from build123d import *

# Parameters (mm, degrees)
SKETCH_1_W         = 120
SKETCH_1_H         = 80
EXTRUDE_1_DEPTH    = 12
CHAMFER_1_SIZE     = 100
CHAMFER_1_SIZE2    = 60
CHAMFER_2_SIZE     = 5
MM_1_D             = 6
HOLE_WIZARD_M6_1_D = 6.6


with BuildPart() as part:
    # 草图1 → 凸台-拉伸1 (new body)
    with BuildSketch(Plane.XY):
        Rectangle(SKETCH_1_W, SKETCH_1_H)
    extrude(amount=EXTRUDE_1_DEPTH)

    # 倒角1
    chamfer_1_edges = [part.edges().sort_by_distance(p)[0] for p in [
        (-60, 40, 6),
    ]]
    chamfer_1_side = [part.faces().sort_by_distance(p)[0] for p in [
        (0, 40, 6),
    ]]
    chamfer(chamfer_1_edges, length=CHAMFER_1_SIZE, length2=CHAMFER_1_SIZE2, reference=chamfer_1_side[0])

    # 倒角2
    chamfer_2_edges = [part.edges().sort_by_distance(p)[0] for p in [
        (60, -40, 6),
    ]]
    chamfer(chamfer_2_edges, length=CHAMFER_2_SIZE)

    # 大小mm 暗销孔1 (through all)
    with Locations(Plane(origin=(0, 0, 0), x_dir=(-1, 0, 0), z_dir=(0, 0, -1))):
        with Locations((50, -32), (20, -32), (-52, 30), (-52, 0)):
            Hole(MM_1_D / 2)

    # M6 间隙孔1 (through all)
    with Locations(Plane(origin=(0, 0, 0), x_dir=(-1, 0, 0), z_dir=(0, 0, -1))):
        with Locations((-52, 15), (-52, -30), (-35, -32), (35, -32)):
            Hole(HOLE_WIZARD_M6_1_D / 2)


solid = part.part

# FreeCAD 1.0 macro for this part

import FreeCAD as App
import Part
import Sketcher


def edges_at(feature, points):
    """Names of the edges that pass closest to the given points."""
    edges = feature.Shape.Edges
    near = lambda p: min(range(len(edges)), key=lambda i: edges[i].distToShape(Part.Vertex(*p))[0])
    return sorted({f"Edge{near(p) + 1}" for p in points})

doc = App.newDocument("Part")
params = doc.addObject("Spreadsheet::Sheet", "Params")
for row, (alias, value) in enumerate([
    ("sketch1_width", "120 mm"),
    ("sketch1_height", "80 mm"),
    ("pad1_length", "12 mm"),
    ("chamfer_size", "100 mm"),
    ("chamfer_size2", "60 mm"),
    ("chamfer2_size", "5 mm"),
    ("sketch2_diameter", "6 mm"),
    ("hole_diameter", "6 mm"),
    ("sketch3_diameter", "6.6 mm"),
    ("hole2_diameter", "6.6 mm"),
], start=1):
    params.set(f"A{row}", alias)
    params.set(f"B{row}", "=" + value)
    params.setAlias(f"B{row}", alias)

body = doc.addObject("PartDesign::Body", "Body")

# Sketch on XY plane
sketch1 = body.newObject("Sketcher::SketchObject", "Sketch")
sketch1.AttachmentSupport = (doc.getObject("XY_Plane"), [""])
sketch1.MapMode = "FlatFace"
sketch1.addGeometry(Part.LineSegment(App.Vector(-60, 40, 0), App.Vector(-60, -40, 0)), False)
sketch1.addGeometry(Part.LineSegment(App.Vector(-60, -40, 0), App.Vector(60, -40, 0)), False)
sketch1.addGeometry(Part.LineSegment(App.Vector(60, -40, 0), App.Vector(60, 40, 0)), False)
sketch1.addGeometry(Part.LineSegment(App.Vector(60, 40, 0), App.Vector(-60, 40, 0)), False)
sketch1.addConstraint(Sketcher.Constraint("Coincident", 0, 2, 1, 1))
sketch1.addConstraint(Sketcher.Constraint("Coincident", 1, 2, 2, 1))
sketch1.addConstraint(Sketcher.Constraint("Coincident", 2, 2, 3, 1))
sketch1.addConstraint(Sketcher.Constraint("Coincident", 3, 2, 0, 1))
sketch1.addConstraint(Sketcher.Constraint("Vertical", 0))
sketch1.addConstraint(Sketcher.Constraint("Horizontal", 1))
sketch1.addConstraint(Sketcher.Constraint("Vertical", 2))
sketch1.addConstraint(Sketcher.Constraint("Horizontal", 3))
sketch1.addConstraint(Sketcher.Constraint("Symmetric", 0, 2, 2, 2, -1, 1))
sketch1.addConstraint(Sketcher.Constraint("DistanceX", 1, 1, 1, 2, 120.0))
sketch1.addConstraint(Sketcher.Constraint("DistanceY", 0, 2, 0, 1, 80.0))
sketch1.setExpression("Constraints[9]", "Params.sketch1_width")
sketch1.setExpression("Constraints[10]", "Params.sketch1_height")
pad1 = body.newObject("PartDesign::Pad", "Pad")
pad1.Profile = sketch1
pad1.setExpression("Length", "Params.pad1_length")
doc.recompute()

chamfer = body.newObject("PartDesign::Chamfer", "Chamfer")
chamfer.Base = (pad1, edges_at(pad1, [(-60, 40, 6)]))
chamfer.ChamferType = "Two distances"
chamfer.setExpression("Size", "Params.chamfer_size")
chamfer.setExpression("Size2", "Params.chamfer_size2")
chamfer.FlipDirection = True
doc.recompute()

chamfer2 = body.newObject("PartDesign::Chamfer", "Chamfer001")
chamfer2.Base = (chamfer, edges_at(chamfer, [(60, -40, 6)]))
chamfer2.setExpression("Size", "Params.chamfer2_size")

# Sketch on XY plane
sketch2 = body.newObject("Sketcher::SketchObject", "Sketch001")
sketch2.AttachmentSupport = (doc.getObject("XY_Plane"), [""])
sketch2.MapMode = "FlatFace"
sketch2.addGeometry(Part.Circle(App.Vector(-50, -32, 0), App.Vector(0, 0, 1), 3), False)
sketch2.addGeometry(Part.Circle(App.Vector(-20, -32, 0), App.Vector(0, 0, 1), 3), False)
sketch2.addGeometry(Part.Circle(App.Vector(52, 30, 0), App.Vector(0, 0, 1), 3), False)
sketch2.addGeometry(Part.Circle(App.Vector(52, 0, 0), App.Vector(0, 0, 1), 3), False)
sketch2.addConstraint(Sketcher.Constraint("Equal", 0, 1))
sketch2.addConstraint(Sketcher.Constraint("Equal", 1, 2))
sketch2.addConstraint(Sketcher.Constraint("Equal", 2, 3))
sketch2.addConstraint(Sketcher.Constraint("PointOnObject", 3, 3, -1))
sketch2.addConstraint(Sketcher.Constraint("Horizontal", 0, 3, 1, 3))
sketch2.addConstraint(Sketcher.Constraint("Vertical", 2, 3, 3, 3))
sketch2.addConstraint(Sketcher.Constraint("Diameter", 0, 6.0))
sketch2.addConstraint(Sketcher.Constraint("DistanceX", 0, 3, -1, 1, 50.0))
sketch2.addConstraint(Sketcher.Constraint("DistanceY", 0, 3, -1, 1, 32.0))
sketch2.addConstraint(Sketcher.Constraint("DistanceX", 1, 3, -1, 1, 20.0))
sketch2.addConstraint(Sketcher.Constraint("DistanceX", -1, 1, 2, 3, 52.0))
sketch2.addConstraint(Sketcher.Constraint("DistanceY", -1, 1, 2, 3, 30.0))
sketch2.setExpression("Constraints[6]", "Params.sketch2_diameter")
doc.recompute()
hole = body.newObject("PartDesign::Hole", "Hole")
hole.Profile = sketch2
hole.ThreadType = "None"
hole.setExpression("Diameter", "Params.hole_diameter")
hole.DepthType = "ThroughAll"
hole.Reversed = True

# Sketch on XY plane
sketch3 = body.newObject("Sketcher::SketchObject", "Sketch002")
sketch3.AttachmentSupport = (doc.getObject("XY_Plane"), [""])
sketch3.MapMode = "FlatFace"
sketch3.addGeometry(Part.Circle(App.Vector(52, 15, 0), App.Vector(0, 0, 1), 3.3), False)
sketch3.addGeometry(Part.Circle(App.Vector(52, -30, 0), App.Vector(0, 0, 1), 3.3), False)
sketch3.addGeometry(Part.Circle(App.Vector(35, -32, 0), App.Vector(0, 0, 1), 3.3), False)
sketch3.addGeometry(Part.Circle(App.Vector(-35, -32, 0), App.Vector(0, 0, 1), 3.3), False)
sketch3.addConstraint(Sketcher.Constraint("Equal", 0, 1))
sketch3.addConstraint(Sketcher.Constraint("Equal", 1, 2))
sketch3.addConstraint(Sketcher.Constraint("Equal", 2, 3))
sketch3.addConstraint(Sketcher.Constraint("Symmetric", 2, 3, 3, 3, -2))
sketch3.addConstraint(Sketcher.Constraint("Vertical", 0, 3, 1, 3))
sketch3.addConstraint(Sketcher.Constraint("Diameter", 0, 6.6))
sketch3.addConstraint(Sketcher.Constraint("DistanceX", -1, 1, 0, 3, 52.0))
sketch3.addConstraint(Sketcher.Constraint("DistanceY", -1, 1, 0, 3, 15.0))
sketch3.addConstraint(Sketcher.Constraint("DistanceY", 1, 3, -1, 1, 30.0))
sketch3.addConstraint(Sketcher.Constraint("DistanceX", -1, 1, 2, 3, 35.0))
sketch3.addConstraint(Sketcher.Constraint("DistanceY", 2, 3, -1, 1, 32.0))
sketch3.setExpression("Constraints[5]", "Params.sketch3_diameter")
doc.recompute()
hole2 = body.newObject("PartDesign::Hole", "Hole001")
hole2.Profile = sketch3
hole2.ThreadType = "None"
hole2.setExpression("Diameter", "Params.hole2_diameter")
hole2.DepthType = "ThroughAll"
hole2.Reversed = True

doc.recompute()
